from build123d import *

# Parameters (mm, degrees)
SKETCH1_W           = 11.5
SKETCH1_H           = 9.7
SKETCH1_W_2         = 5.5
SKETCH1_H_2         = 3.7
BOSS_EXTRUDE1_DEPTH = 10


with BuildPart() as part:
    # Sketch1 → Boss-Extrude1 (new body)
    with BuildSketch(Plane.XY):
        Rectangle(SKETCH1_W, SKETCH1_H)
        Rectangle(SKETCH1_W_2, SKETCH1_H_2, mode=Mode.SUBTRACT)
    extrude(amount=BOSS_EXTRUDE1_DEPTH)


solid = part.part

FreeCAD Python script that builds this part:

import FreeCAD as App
import Part
import Sketcher
from FreeCAD import Vector
Q = App.Units.Quantity


def add_polygon(sketch, points):
    """Adds a closed chain of lines whose ends are joined by coincident constraints."""
    first, n = sketch.GeometryCount, len(points)
    for a, b in zip(points, points[1:] + points[:1]):
        sketch.addGeometry(Part.LineSegment(App.Vector(*a, 0), App.Vector(*b, 0)), False)
    for i in range(n):
        sketch.addConstraint(Sketcher.Constraint("Coincident", first + i, 2, first + (i + 1) % n, 1))

doc = App.newDocument("Part")
params = doc.addObject("Spreadsheet::Sheet", "Params")
for row, (alias, value) in enumerate([
    ("sketch1_width", "11.5 mm"),
    ("sketch1_width2", "5.5 mm"),
    ("sketch1_height", "9.7 mm"),
    ("sketch1_height2", "3.7 mm"),
    ("pad1_length", "10 mm"),
], start=1):
    params.set(f"A{row}", alias)
    params.set(f"B{row}", "=" + value)
    params.setAlias(f"B{row}", alias)

body = doc.addObject("PartDesign::Body", "Body")

# Sketch on XY plane
sketch1 = doc.addObject("Sketcher::SketchObject", "Sketch")
body.addObject(sketch1)
sketch1.AttachmentSupport = (doc.XY_Plane, [""])
sketch1.MapMode = "FlatFace"
add_polygon(sketch1, [(-5.8, 4.8), (-5.8, -4.8), (5.8, -4.8), (5.8, 4.8)])  # lines 0-3
add_polygon(sketch1, [(2.8, -1.9), (-2.8, -1.9), (-2.8, 1.9), (2.8, 1.9)])  # lines 4-7
sketch1.addConstraint([
    Sketcher.Constraint("Vertical", 0),
    Sketcher.Constraint("Horizontal", 1),
    Sketcher.Constraint("Vertical", 2),
    Sketcher.Constraint("Horizontal", 3),
    Sketcher.Constraint("Horizontal", 4),
    Sketcher.Constraint("Vertical", 5),
    Sketcher.Constraint("Horizontal", 6),
    Sketcher.Constraint("Vertical", 7),
    Sketcher.Constraint("Symmetric", 0, 2, 2, 2, -1, 1),
    Sketcher.Constraint("Symmetric", 4, 2, 6, 2, -1, 1),
    Sketcher.Constraint("DistanceX", 1, 1, 1, 2, Q("11.5 mm")),
    Sketcher.Constraint("DistanceX", 4, 2, 4, 1, Q("5.5 mm")),
    Sketcher.Constraint("DistanceY", 0, 2, 0, 1, Q("9.7 mm")),
    Sketcher.Constraint("DistanceY", 5, 1, 5, 2, Q("3.7 mm")),
])
sketch1.setExpression("Constraints[18]", "Params.sketch1_width")
sketch1.setExpression("Constraints[19]", "Params.sketch1_width2")
sketch1.setExpression("Constraints[20]", "Params.sketch1_height")
sketch1.setExpression("Constraints[21]", "Params.sketch1_height2")
pad1 = doc.addObject("PartDesign::Pad", "Pad")
body.addObject(pad1)
pad1.Profile = sketch1
pad1.setExpression("Length", "Params.pad1_length")

doc.recompute()
